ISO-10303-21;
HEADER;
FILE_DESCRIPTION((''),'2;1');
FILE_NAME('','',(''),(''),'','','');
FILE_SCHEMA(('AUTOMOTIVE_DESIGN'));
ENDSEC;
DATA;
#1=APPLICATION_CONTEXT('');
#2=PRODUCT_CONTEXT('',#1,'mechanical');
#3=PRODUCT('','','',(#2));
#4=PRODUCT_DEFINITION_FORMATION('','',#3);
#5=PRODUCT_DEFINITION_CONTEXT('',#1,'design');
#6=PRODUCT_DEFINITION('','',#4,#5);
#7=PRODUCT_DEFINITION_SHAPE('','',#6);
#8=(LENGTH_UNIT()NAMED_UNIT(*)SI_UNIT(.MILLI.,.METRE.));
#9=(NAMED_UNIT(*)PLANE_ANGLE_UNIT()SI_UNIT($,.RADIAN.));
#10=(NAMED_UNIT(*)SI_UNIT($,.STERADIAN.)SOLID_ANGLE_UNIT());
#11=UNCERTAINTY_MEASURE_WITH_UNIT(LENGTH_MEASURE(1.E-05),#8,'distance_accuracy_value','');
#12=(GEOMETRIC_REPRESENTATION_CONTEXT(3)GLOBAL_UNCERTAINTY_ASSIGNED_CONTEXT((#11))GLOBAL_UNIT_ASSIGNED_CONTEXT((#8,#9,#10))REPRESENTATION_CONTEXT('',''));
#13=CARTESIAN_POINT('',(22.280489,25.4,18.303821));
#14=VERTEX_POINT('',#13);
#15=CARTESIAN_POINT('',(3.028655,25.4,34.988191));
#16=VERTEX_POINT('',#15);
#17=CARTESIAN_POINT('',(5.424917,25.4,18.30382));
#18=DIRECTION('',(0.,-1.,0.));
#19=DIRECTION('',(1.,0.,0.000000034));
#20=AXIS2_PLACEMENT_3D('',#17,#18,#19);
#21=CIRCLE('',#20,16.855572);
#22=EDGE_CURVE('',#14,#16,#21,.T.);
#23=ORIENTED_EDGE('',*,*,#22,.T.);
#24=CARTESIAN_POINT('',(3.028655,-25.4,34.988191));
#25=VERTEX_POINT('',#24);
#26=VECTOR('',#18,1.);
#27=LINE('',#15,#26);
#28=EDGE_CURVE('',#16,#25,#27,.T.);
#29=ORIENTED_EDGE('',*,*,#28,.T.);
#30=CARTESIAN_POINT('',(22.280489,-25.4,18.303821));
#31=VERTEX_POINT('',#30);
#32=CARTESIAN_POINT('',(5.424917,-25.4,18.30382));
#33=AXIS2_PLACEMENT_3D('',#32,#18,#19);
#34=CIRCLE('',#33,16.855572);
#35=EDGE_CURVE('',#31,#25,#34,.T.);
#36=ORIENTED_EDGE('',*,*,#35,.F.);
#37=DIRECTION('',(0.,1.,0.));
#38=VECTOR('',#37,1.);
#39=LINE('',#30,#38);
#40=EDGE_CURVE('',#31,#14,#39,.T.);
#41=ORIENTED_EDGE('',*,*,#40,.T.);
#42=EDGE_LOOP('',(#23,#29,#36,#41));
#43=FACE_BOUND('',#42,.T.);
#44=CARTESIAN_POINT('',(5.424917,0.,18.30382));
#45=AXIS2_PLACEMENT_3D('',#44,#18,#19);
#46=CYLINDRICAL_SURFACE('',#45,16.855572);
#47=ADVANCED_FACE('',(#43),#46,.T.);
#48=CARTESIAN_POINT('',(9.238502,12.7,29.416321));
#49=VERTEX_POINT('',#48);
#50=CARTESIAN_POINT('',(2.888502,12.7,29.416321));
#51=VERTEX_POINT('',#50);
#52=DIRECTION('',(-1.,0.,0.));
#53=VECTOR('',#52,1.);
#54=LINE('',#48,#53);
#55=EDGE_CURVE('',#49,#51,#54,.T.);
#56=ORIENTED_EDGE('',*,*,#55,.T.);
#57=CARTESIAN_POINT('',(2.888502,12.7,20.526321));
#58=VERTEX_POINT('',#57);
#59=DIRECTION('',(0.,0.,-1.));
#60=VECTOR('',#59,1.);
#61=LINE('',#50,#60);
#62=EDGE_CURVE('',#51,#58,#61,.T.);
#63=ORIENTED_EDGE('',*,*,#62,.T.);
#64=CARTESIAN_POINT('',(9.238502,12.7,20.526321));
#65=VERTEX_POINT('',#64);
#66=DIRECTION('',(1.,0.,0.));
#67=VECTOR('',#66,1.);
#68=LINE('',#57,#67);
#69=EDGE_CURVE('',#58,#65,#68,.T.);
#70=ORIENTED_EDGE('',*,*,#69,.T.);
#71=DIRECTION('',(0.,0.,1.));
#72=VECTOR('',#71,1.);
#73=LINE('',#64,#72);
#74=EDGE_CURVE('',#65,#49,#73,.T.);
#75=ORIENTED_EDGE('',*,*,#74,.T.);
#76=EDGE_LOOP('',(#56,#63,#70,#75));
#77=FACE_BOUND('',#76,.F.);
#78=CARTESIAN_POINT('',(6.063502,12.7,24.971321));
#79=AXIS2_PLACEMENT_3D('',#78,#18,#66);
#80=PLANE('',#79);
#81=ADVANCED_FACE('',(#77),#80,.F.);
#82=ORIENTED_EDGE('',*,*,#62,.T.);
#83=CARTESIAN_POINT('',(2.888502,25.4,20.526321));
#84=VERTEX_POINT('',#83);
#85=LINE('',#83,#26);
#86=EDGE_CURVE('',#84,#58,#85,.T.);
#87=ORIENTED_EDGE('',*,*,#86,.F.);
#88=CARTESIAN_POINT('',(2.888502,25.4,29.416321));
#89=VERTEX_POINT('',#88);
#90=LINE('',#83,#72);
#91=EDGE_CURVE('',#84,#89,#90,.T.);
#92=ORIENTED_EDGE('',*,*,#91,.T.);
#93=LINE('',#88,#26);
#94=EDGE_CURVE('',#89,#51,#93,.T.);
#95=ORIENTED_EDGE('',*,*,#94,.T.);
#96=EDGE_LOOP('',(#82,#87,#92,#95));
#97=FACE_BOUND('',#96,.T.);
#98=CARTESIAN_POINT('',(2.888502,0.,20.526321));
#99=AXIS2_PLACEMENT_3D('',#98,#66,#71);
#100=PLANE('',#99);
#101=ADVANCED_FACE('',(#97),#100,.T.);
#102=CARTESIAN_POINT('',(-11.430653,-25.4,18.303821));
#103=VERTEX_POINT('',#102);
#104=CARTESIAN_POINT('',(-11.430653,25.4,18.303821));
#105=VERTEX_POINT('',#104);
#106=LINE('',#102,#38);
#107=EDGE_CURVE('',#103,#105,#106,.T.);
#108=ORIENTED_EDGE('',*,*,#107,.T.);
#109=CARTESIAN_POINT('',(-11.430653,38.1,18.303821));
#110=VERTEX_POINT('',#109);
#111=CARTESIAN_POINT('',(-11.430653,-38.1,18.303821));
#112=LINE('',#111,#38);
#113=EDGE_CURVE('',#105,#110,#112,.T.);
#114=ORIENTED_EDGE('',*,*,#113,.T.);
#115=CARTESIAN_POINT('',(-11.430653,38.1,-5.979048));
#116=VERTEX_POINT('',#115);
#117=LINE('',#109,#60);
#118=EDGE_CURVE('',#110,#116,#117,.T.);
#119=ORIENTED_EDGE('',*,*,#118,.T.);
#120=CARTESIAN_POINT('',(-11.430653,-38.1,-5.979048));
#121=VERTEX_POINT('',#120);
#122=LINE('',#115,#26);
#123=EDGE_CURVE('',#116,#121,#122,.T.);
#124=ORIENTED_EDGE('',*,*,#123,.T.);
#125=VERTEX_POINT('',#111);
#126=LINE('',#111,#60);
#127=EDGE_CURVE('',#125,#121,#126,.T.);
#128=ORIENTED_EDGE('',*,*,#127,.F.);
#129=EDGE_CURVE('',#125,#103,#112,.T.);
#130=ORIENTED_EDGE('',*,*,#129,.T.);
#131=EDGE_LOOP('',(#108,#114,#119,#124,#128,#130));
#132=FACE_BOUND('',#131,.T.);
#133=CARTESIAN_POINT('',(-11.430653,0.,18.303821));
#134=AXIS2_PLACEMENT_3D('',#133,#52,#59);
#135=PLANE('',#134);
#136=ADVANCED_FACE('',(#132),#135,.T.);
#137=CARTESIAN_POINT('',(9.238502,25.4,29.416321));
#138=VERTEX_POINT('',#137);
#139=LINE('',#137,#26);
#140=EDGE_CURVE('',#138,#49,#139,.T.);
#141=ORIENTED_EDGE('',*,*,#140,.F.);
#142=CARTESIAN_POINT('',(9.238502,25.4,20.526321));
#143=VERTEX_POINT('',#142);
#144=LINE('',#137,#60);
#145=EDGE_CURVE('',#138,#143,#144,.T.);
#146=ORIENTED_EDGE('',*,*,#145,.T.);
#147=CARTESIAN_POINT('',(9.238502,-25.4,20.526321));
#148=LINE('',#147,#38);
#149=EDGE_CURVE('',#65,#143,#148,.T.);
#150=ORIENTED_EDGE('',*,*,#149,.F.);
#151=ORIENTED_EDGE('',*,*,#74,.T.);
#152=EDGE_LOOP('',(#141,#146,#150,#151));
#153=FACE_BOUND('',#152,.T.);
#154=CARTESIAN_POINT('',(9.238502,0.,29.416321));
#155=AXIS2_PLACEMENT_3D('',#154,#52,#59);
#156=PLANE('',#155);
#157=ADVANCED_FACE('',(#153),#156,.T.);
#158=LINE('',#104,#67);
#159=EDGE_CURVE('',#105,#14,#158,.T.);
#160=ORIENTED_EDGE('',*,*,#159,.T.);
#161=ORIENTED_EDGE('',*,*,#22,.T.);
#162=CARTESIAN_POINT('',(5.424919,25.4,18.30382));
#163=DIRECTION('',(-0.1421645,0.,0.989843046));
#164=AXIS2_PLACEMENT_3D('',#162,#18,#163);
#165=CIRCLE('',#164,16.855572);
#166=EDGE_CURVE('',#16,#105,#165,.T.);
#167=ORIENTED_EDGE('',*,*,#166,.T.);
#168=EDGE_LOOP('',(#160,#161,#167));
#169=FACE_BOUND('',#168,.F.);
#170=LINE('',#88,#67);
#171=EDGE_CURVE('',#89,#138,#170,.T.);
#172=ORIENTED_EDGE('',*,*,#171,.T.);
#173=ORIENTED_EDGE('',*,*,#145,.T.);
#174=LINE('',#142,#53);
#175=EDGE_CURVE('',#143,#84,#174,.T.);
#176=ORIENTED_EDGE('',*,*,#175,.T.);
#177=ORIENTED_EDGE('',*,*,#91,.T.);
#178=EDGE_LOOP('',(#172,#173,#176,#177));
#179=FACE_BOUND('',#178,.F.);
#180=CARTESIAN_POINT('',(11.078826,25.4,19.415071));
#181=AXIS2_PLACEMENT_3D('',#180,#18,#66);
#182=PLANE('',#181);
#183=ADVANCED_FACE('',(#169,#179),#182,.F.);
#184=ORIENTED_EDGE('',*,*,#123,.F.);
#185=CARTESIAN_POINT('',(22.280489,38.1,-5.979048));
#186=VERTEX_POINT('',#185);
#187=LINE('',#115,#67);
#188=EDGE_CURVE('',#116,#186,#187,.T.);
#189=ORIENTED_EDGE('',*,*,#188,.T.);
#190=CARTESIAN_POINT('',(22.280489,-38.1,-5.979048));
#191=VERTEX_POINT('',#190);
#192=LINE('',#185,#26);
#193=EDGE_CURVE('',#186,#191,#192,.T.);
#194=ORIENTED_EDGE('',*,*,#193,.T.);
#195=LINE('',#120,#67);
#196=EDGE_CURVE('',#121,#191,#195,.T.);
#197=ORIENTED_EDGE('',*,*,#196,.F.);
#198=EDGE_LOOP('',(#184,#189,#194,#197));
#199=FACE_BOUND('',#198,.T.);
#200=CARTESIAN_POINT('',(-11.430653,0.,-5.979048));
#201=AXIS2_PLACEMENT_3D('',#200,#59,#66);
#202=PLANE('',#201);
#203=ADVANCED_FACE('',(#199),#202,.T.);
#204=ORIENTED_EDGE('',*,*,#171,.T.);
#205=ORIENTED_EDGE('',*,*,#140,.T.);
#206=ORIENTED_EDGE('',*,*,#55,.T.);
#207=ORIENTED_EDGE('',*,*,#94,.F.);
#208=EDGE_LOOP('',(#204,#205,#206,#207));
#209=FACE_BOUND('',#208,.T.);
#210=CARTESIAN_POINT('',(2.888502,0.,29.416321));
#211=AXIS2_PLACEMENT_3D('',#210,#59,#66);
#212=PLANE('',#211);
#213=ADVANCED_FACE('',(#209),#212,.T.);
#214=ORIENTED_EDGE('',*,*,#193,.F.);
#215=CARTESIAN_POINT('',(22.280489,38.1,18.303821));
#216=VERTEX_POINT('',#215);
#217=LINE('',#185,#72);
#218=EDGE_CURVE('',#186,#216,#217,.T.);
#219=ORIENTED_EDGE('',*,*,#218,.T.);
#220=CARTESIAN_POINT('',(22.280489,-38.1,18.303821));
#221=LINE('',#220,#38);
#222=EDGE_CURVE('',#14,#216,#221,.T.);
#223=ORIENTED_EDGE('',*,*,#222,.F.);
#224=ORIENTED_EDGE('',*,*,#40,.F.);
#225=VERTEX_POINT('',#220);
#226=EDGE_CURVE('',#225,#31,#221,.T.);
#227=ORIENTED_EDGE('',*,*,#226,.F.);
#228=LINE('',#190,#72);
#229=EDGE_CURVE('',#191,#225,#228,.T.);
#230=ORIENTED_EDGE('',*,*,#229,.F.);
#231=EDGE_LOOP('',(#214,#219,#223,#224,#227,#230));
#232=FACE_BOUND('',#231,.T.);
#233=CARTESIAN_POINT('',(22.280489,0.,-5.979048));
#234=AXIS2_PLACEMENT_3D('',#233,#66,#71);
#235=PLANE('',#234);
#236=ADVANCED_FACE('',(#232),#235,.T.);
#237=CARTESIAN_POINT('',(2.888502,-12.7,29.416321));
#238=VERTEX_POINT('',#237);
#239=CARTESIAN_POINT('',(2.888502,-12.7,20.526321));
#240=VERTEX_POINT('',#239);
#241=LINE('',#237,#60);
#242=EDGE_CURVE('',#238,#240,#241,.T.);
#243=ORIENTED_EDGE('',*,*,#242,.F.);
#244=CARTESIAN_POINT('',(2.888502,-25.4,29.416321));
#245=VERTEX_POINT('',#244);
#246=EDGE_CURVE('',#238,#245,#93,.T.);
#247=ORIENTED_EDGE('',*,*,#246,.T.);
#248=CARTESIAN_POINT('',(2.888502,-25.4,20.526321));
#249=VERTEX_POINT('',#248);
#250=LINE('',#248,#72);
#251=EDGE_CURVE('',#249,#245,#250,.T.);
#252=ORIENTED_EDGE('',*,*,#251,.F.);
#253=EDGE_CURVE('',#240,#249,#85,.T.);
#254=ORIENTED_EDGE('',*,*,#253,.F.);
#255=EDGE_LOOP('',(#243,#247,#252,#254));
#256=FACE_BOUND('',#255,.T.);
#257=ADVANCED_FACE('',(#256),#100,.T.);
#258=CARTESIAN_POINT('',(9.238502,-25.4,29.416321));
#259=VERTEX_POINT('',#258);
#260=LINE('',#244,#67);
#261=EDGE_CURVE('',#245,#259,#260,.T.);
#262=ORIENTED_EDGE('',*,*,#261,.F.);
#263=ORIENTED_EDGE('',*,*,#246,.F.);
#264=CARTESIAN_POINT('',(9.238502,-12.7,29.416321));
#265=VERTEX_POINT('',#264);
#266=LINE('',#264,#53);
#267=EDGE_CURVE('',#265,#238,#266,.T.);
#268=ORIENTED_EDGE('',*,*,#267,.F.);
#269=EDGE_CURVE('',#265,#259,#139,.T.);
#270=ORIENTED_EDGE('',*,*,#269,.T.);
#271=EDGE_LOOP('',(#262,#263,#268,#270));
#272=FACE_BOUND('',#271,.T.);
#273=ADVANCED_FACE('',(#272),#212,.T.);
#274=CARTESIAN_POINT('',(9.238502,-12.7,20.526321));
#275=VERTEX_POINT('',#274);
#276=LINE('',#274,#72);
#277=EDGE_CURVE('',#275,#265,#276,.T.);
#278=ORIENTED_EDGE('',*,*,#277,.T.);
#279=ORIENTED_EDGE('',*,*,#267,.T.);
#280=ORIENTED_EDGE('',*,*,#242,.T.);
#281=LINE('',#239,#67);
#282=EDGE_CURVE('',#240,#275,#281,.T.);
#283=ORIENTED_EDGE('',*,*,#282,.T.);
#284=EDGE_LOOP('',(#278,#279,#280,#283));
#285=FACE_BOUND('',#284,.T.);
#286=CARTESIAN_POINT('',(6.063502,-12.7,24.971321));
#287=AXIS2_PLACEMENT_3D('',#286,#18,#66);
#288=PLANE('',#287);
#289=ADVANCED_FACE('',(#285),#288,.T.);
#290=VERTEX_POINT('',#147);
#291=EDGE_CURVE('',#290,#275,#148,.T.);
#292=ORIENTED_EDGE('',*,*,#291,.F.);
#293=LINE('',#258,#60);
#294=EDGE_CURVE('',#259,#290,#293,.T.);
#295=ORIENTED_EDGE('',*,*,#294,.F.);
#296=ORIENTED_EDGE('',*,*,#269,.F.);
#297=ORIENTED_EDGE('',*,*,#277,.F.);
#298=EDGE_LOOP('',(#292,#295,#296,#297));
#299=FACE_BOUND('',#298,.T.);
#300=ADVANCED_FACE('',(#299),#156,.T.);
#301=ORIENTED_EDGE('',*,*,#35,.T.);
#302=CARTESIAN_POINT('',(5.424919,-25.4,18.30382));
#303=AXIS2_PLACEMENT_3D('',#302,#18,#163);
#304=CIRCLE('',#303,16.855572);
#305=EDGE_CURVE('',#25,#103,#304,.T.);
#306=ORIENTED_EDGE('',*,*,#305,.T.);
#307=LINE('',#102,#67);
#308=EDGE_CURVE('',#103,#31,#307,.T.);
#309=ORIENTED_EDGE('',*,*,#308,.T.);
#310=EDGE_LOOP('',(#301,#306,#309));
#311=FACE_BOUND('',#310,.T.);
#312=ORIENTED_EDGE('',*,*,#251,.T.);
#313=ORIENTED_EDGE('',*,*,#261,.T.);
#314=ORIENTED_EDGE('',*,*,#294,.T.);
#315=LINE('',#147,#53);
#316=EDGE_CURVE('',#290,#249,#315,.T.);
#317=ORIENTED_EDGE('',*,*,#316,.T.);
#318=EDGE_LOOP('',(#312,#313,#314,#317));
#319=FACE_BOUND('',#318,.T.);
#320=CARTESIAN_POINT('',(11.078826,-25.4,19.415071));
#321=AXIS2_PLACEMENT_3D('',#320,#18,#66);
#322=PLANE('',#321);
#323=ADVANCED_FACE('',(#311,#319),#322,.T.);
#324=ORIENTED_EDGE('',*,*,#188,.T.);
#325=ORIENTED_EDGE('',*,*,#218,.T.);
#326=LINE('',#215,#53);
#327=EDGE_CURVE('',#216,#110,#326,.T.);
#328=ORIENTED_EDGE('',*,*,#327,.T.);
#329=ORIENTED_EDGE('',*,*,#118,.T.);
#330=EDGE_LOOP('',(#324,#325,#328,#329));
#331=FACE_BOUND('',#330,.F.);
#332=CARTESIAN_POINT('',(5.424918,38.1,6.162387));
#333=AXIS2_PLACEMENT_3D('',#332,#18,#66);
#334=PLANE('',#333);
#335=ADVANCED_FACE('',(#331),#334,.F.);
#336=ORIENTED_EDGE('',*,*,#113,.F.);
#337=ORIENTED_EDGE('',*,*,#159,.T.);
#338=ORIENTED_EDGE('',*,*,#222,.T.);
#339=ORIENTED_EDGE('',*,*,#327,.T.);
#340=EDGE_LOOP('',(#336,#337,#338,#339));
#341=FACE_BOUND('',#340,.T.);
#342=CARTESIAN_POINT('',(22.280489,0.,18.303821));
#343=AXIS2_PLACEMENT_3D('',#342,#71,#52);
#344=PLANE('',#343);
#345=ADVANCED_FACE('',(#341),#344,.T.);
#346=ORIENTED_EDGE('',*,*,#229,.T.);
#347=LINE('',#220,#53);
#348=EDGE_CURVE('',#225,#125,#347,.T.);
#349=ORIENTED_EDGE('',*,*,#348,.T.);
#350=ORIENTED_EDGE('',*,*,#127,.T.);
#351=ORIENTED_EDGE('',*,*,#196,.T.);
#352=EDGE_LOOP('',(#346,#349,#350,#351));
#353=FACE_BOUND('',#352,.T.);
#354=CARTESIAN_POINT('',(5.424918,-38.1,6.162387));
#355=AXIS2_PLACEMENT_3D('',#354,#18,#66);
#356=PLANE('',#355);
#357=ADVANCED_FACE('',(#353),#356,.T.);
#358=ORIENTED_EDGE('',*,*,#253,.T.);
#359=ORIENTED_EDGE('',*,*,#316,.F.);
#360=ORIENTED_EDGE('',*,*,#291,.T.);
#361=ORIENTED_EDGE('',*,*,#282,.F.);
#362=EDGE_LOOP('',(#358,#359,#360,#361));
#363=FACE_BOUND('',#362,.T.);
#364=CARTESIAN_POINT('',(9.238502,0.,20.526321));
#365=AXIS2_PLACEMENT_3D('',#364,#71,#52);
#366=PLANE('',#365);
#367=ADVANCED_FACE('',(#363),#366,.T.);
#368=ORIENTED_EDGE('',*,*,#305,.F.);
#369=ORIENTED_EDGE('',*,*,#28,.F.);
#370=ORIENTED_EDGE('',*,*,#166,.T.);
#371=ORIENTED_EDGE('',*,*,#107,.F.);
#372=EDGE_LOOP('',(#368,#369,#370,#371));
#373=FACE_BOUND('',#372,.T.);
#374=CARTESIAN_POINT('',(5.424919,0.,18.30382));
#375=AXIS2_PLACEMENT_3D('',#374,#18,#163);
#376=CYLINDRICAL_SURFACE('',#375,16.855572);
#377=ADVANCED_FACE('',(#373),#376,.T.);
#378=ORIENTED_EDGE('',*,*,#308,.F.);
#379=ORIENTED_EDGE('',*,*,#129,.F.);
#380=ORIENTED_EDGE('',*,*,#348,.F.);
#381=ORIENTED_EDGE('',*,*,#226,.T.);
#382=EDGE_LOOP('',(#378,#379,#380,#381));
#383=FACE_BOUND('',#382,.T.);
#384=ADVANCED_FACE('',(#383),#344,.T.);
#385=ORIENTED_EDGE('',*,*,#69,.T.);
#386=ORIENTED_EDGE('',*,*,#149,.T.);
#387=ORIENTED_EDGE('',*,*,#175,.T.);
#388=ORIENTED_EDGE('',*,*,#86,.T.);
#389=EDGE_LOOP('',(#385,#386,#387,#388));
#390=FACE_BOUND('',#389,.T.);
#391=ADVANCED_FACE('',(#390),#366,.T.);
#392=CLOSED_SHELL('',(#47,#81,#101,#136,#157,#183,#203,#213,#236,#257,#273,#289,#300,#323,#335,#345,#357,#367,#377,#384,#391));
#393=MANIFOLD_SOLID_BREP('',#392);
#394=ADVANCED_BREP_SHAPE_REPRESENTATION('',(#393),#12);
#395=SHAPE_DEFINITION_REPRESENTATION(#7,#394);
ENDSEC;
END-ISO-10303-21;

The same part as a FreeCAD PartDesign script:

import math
import FreeCAD as App
import Part
import Sketcher

V = App.Vector
Q = App.Units.Quantity

doc = App.newDocument("Part")
body = doc.addObject("PartDesign::Body", "Body")

# Sketch on XZ plane
sketch1 = body.newObject("Sketcher::SketchObject", "Sketch")
sketch1.AttachmentSupport = (doc.getObject("XZ_Plane"), [""])
sketch1.MapMode = "FlatFace"
sketch1.addGeometry(Part.LineSegment(V(-11.430653, 18.303821, 0), V(-11.430653, -5.979048, 0)), False)
sketch1.addGeometry(Part.LineSegment(V(-11.430653, -5.979048, 0), V(22.280489, -5.979048, 0)), False)
sketch1.addGeometry(Part.LineSegment(V(22.280489, -5.979048, 0), V(22.280489, 18.303821, 0)), False)
sketch1.addGeometry(Part.LineSegment(V(22.280489, 18.303821, 0), V(-11.430653, 18.303821, 0)), False)
sketch1.addConstraint(Sketcher.Constraint("Coincident", 0, 2, 1, 1))
sketch1.addConstraint(Sketcher.Constraint("Coincident", 1, 2, 2, 1))
sketch1.addConstraint(Sketcher.Constraint("Coincident", 2, 2, 3, 1))
sketch1.addConstraint(Sketcher.Constraint("Coincident", 3, 2, 0, 1))
sketch1.addConstraint(Sketcher.Constraint("Vertical", 0))
sketch1.addConstraint(Sketcher.Constraint("Horizontal", 1))
sketch1.addConstraint(Sketcher.Constraint("Vertical", 2))
sketch1.addConstraint(Sketcher.Constraint("Horizontal", 3))
sketch1.addConstraint(Sketcher.Constraint("DistanceX", 1, 1, 1, 2, Q("33.711142 mm")))
sketch1.addConstraint(Sketcher.Constraint("DistanceY", 0, 2, 0, 1, Q("24.282869 mm")))
sketch1.addConstraint(Sketcher.Constraint("DistanceX", -1, 1, 1, 2, Q("22.280489 mm")))
sketch1.addConstraint(Sketcher.Constraint("DistanceY", -1, 1, 2, 2, Q("18.303821 mm")))
pad1 = body.newObject("PartDesign::Pad", "Pad")
pad1.Profile = sketch1
pad1.Length = Q("3 in")
pad1.Midplane = True

# Sketch on XZ plane
sketch2 = body.newObject("Sketcher::SketchObject", "Sketch001")
sketch2.AttachmentSupport = (doc.getObject("XZ_Plane"), [""])
sketch2.MapMode = "FlatFace"
sketch2.addGeometry(Part.ArcOfCircle(Part.Circle(V(5.424917, 18.30382, 0), V(0, 0, 1), 16.855572), math.radians(0.000002), math.radians(98.173111)), False)
sketch2.addGeometry(Part.ArcOfCircle(Part.Circle(V(5.424919, 18.30382, 0), V(0, 0, 1), 16.855572), math.radians(98.173116), math.radians(179.999998)), False)
sketch2.addGeometry(Part.LineSegment(V(-11.430653, 18.303821, 0), V(22.280489, 18.303821, 0)), False)
sketch2.addGeometry(Part.LineSegment(V(9.238502, 20.526321, 0), V(2.888502, 20.526321, 0)), False)
sketch2.addGeometry(Part.LineSegment(V(2.888502, 20.526321, 0), V(2.888502, 29.416321, 0)), False)
sketch2.addGeometry(Part.LineSegment(V(2.888502, 29.416321, 0), V(9.238502, 29.416321, 0)), False)
sketch2.addGeometry(Part.LineSegment(V(9.238502, 29.416321, 0), V(9.238502, 20.526321, 0)), False)
sketch2.addConstraint(Sketcher.Constraint("Tangent", 0, 2, 1, 1))
sketch2.addConstraint(Sketcher.Constraint("Coincident", 1, 2, 2, 1))
sketch2.addConstraint(Sketcher.Constraint("Coincident", 2, 2, 0, 1))
sketch2.addConstraint(Sketcher.Constraint("Coincident", 3, 2, 4, 1))
sketch2.addConstraint(Sketcher.Constraint("Coincident", 4, 2, 5, 1))
sketch2.addConstraint(Sketcher.Constraint("Coincident", 5, 2, 6, 1))
sketch2.addConstraint(Sketcher.Constraint("Coincident", 6, 2, 3, 1))
sketch2.addConstraint(Sketcher.Constraint("Horizontal", 2))
sketch2.addConstraint(Sketcher.Constraint("Horizontal", 3))
sketch2.addConstraint(Sketcher.Constraint("Vertical", 4))
sketch2.addConstraint(Sketcher.Constraint("Horizontal", 5))
sketch2.addConstraint(Sketcher.Constraint("Vertical", 6))
sketch2.addConstraint(Sketcher.Constraint("Equal", 0, 1))
sketch2.addConstraint(Sketcher.Constraint("Horizontal", 0, 3, 1, 2))
sketch2.addConstraint(Sketcher.Constraint("DistanceX", 3, 2, 3, 1, Q("0.25 in")))
sketch2.addConstraint(Sketcher.Constraint("DistanceY", 4, 1, 4, 2, Q("0.35 in")))
sketch2.addConstraint(Sketcher.Constraint("Radius", 0, Q("16.855572 mm")))
sketch2.addConstraint(Sketcher.Constraint("DistanceY", 0, 3, 4, 2, Q("0.4375 in")))
sketch2.addConstraint(Sketcher.Constraint("DistanceX", -1, 1, 3, 2, Q("2.888502 mm")))
sketch2.addConstraint(Sketcher.Constraint("DistanceY", -1, 1, 0, 3, Q("18.30382 mm")))
sketch2.addConstraint(Sketcher.Constraint("DistanceX", -1, 1, 1, 3, Q("5.424919 mm")))
sketch2.addConstraint(Sketcher.Constraint("DistanceY", -1, 1, 0, 2, Q("34.988191 mm")))
pad2 = body.newObject("PartDesign::Pad", "Pad001")
pad2.Profile = sketch2
pad2.Length = Q("2 in")
pad2.Midplane = True

# Sketch on XZ plane
sketch3 = body.newObject("Sketcher::SketchObject", "Sketch002")
sketch3.AttachmentSupport = (doc.getObject("XZ_Plane"), [""])
sketch3.MapMode = "FlatFace"
sketch3.addGeometry(Part.LineSegment(V(2.888502, 20.526321, 0), V(9.238502, 20.526321, 0)), False)
sketch3.addGeometry(Part.LineSegment(V(9.238502, 20.526321, 0), V(9.238502, 29.416321, 0)), False)
sketch3.addGeometry(Part.LineSegment(V(9.238502, 29.416321, 0), V(2.888502, 29.416321, 0)), False)
sketch3.addGeometry(Part.LineSegment(V(2.888502, 29.416321, 0), V(2.888502, 20.526321, 0)), False)
sketch3.addConstraint(Sketcher.Constraint("Coincident", 0, 2, 1, 1))
sketch3.addConstraint(Sketcher.Constraint("Coincident", 1, 2, 2, 1))
sketch3.addConstraint(Sketcher.Constraint("Coincident", 2, 2, 3, 1))
sketch3.addConstraint(Sketcher.Constraint("Coincident", 3, 2, 0, 1))
sketch3.addConstraint(Sketcher.Constraint("Horizontal", 0))
sketch3.addConstraint(Sketcher.Constraint("Vertical", 1))
sketch3.addConstraint(Sketcher.Constraint("Horizontal", 2))
sketch3.addConstraint(Sketcher.Constraint("Vertical", 3))
sketch3.addConstraint(Sketcher.Constraint("DistanceX", 0, 1, 0, 2, Q("0.25 in")))
sketch3.addConstraint(Sketcher.Constraint("DistanceY", 1, 1, 1, 2, Q("0.35 in")))
sketch3.addConstraint(Sketcher.Constraint("DistanceX", -1, 1, 2, 2, Q("2.888502 mm")))
sketch3.addConstraint(Sketcher.Constraint("DistanceY", -1, 1, 0, 2, Q("20.526321 mm")))
pad3 = body.newObject("PartDesign::Pad", "Pad002")
pad3.Profile = sketch3
pad3.Length = Q("1 in")
pad3.Midplane = True

doc.recompute()
